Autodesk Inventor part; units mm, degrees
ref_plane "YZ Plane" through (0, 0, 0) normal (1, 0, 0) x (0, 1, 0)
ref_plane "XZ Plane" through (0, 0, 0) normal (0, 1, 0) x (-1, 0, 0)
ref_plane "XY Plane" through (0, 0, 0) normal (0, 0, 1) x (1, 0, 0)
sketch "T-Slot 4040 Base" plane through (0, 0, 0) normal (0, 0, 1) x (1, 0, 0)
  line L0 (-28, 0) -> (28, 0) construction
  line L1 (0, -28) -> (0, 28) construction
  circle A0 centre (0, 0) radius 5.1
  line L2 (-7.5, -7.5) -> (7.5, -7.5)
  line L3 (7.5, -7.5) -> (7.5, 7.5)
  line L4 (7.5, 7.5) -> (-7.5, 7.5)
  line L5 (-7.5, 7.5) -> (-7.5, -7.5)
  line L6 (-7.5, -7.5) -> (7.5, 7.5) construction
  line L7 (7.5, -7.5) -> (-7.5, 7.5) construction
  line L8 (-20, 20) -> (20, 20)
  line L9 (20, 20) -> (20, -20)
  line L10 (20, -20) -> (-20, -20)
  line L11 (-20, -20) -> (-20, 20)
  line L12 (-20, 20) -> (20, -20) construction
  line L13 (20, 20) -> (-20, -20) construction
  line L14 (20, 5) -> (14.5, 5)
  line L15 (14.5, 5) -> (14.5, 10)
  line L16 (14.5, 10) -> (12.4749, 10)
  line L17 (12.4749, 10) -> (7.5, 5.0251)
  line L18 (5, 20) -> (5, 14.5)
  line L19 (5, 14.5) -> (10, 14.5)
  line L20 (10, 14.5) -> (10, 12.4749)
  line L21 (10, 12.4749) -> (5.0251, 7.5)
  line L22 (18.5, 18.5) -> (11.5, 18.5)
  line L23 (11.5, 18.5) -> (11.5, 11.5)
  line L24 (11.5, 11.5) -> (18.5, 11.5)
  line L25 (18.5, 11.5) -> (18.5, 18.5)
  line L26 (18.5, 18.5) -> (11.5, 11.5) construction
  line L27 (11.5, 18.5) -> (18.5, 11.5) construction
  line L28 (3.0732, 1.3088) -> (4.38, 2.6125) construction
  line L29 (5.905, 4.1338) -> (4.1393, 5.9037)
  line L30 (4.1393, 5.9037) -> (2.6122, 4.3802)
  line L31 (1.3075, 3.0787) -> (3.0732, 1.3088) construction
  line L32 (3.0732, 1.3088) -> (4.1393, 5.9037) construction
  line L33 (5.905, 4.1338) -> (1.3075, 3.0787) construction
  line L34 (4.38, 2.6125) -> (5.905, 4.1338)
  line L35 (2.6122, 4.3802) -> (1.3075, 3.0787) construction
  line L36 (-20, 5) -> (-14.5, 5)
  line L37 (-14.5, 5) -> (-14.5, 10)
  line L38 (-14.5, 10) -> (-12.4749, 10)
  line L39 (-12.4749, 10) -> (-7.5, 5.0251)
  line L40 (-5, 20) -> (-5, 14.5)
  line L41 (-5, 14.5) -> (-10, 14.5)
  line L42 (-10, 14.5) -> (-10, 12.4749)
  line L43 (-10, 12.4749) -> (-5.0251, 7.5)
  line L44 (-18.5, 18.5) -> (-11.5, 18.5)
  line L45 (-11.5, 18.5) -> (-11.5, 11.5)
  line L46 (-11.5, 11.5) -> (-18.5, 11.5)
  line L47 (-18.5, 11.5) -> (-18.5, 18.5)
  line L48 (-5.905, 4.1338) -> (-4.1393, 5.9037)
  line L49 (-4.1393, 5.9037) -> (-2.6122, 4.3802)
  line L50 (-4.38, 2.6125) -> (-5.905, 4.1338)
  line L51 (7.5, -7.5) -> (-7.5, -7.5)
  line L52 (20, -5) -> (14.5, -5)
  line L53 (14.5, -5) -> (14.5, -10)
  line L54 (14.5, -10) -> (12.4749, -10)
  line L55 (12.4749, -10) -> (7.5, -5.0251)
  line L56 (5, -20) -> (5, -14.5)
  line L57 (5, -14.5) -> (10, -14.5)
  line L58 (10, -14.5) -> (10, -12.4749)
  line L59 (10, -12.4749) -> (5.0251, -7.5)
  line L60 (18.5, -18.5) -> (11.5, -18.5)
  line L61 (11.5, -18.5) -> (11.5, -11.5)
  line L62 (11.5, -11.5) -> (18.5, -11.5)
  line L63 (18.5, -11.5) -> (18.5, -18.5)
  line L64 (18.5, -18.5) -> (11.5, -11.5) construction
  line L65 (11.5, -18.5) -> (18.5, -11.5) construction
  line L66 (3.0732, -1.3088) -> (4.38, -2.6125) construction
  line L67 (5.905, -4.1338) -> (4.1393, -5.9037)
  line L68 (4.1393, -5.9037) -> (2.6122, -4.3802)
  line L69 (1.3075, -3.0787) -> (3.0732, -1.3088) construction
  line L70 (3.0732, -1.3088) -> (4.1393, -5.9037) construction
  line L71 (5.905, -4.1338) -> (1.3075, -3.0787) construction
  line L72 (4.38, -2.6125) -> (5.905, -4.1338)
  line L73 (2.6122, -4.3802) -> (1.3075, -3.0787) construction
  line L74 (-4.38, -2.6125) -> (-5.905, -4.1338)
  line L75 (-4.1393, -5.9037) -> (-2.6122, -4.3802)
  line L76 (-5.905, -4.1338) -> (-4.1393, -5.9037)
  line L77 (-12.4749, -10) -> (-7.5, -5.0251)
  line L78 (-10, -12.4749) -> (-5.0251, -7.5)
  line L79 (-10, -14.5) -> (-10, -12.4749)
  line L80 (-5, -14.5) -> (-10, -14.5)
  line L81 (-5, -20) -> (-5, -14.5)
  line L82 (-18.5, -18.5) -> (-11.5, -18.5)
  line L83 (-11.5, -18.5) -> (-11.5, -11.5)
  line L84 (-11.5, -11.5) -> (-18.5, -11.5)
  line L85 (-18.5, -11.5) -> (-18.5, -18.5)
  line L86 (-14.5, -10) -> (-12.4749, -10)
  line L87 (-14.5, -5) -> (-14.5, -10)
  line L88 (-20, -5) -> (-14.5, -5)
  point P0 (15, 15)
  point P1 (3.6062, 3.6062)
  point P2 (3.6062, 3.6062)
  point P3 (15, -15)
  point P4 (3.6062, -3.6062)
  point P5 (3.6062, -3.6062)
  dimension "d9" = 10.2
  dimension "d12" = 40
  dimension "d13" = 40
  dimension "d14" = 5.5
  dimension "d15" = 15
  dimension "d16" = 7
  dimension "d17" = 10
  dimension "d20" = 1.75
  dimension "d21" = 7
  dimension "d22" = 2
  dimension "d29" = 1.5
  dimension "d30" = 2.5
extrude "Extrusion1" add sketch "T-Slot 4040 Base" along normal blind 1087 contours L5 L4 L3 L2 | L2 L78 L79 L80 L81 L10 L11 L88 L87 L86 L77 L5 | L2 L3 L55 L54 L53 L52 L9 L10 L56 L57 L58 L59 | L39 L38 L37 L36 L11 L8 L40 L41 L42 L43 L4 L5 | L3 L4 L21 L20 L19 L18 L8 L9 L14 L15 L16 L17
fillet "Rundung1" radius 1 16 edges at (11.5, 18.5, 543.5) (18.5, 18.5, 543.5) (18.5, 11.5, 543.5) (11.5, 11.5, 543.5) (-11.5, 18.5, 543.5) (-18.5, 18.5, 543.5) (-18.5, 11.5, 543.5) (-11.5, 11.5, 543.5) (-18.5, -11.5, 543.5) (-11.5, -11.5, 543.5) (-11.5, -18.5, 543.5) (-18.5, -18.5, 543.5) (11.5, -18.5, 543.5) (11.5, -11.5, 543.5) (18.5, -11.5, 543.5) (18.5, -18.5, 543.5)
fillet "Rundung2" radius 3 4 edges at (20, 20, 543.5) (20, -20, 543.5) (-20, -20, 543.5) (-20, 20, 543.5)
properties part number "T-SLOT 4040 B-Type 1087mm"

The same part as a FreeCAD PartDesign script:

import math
import FreeCAD as App
import Part
import Sketcher
from FreeCAD import Vector
Q = App.Units.Quantity


def edges_at(feature, points):
    """Names of the edges that pass closest to the given points."""
    edges = feature.Shape.Edges
    near = lambda p: min(range(len(edges)), key=lambda i: edges[i].distToShape(Part.Vertex(*p))[0])
    return sorted({f"Edge{near(p) + 1}" for p in points})

doc = App.newDocument("Part")
body = doc.addObject("PartDesign::Body", "Body")

sketch1 = body.newObject("Sketcher::SketchObject", "Sketch")
sketch1.AttachmentSupport = (doc.getObject("XY_Plane"), [""])
sketch1.MapMode = "FlatFace"
sketch1.addGeometry(Part.LineSegment(Vector(-7.5, 5, 0), Vector(-7.5, -5, 0)), False)
sketch1.addGeometry(Part.LineSegment(Vector(-7.5, -5, 0), Vector(-12.5, -10, 0)), False)
sketch1.addGeometry(Part.LineSegment(Vector(-12.5, -10, 0), Vector(-14.5, -10, 0)), False)
sketch1.addGeometry(Part.LineSegment(Vector(-14.5, -10, 0), Vector(-14.5, -5, 0)), False)
sketch1.addGeometry(Part.LineSegment(Vector(-14.5, -5, 0), Vector(-20, -5, 0)), False)
sketch1.addGeometry(Part.LineSegment(Vector(-20, -5, 0), Vector(-20, -20, 0)), False)
sketch1.addGeometry(Part.LineSegment(Vector(-20, -20, 0), Vector(-5, -20, 0)), False)
sketch1.addGeometry(Part.LineSegment(Vector(-5, -20, 0), Vector(-5, -14.5, 0)), False)
sketch1.addGeometry(Part.LineSegment(Vector(-5, -14.5, 0), Vector(-10, -14.5, 0)), False)
sketch1.addGeometry(Part.LineSegment(Vector(-10, -14.5, 0), Vector(-10, -12.5, 0)), False)
sketch1.addGeometry(Part.LineSegment(Vector(-10, -12.5, 0), Vector(-5, -7.5, 0)), False)
sketch1.addGeometry(Part.LineSegment(Vector(-5, -7.5, 0), Vector(5, -7.5, 0)), False)
sketch1.addGeometry(Part.LineSegment(Vector(5, -7.5, 0), Vector(10, -12.5, 0)), False)
sketch1.addGeometry(Part.LineSegment(Vector(10, -12.5, 0), Vector(10, -14.5, 0)), False)
sketch1.addGeometry(Part.LineSegment(Vector(10, -14.5, 0), Vector(5, -14.5, 0)), False)
sketch1.addGeometry(Part.LineSegment(Vector(5, -14.5, 0), Vector(5, -20, 0)), False)
sketch1.addGeometry(Part.LineSegment(Vector(5, -20, 0), Vector(20, -20, 0)), False)
sketch1.addGeometry(Part.LineSegment(Vector(20, -20, 0), Vector(20, -5, 0)), False)
sketch1.addGeometry(Part.LineSegment(Vector(20, -5, 0), Vector(14.5, -5, 0)), False)
sketch1.addGeometry(Part.LineSegment(Vector(14.5, -5, 0), Vector(14.5, -10, 0)), False)
sketch1.addGeometry(Part.LineSegment(Vector(14.5, -10, 0), Vector(12.5, -10, 0)), False)
sketch1.addGeometry(Part.LineSegment(Vector(12.5, -10, 0), Vector(7.5, -5, 0)), False)
sketch1.addGeometry(Part.LineSegment(Vector(7.5, -5, 0), Vector(7.5, 5, 0)), False)
sketch1.addGeometry(Part.LineSegment(Vector(7.5, 5, 0), Vector(12.5, 10, 0)), False)
sketch1.addGeometry(Part.LineSegment(Vector(12.5, 10, 0), Vector(14.5, 10, 0)), False)
sketch1.addGeometry(Part.LineSegment(Vector(14.5, 10, 0), Vector(14.5, 5, 0)), False)
sketch1.addGeometry(Part.LineSegment(Vector(14.5, 5, 0), Vector(20, 5, 0)), False)
sketch1.addGeometry(Part.LineSegment(Vector(20, 5, 0), Vector(20, 20, 0)), False)
sketch1.addGeometry(Part.LineSegment(Vector(20, 20, 0), Vector(5, 20, 0)), False)
sketch1.addGeometry(Part.LineSegment(Vector(5, 20, 0), Vector(5, 14.5, 0)), False)
sketch1.addGeometry(Part.LineSegment(Vector(5, 14.5, 0), Vector(10, 14.5, 0)), False)
sketch1.addGeometry(Part.LineSegment(Vector(10, 14.5, 0), Vector(10, 12.5, 0)), False)
sketch1.addGeometry(Part.LineSegment(Vector(10, 12.5, 0), Vector(5, 7.5, 0)), False)
sketch1.addGeometry(Part.LineSegment(Vector(5, 7.5, 0), Vector(-5, 7.5, 0)), False)
sketch1.addGeometry(Part.LineSegment(Vector(-5, 7.5, 0), Vector(-10, 12.5, 0)), False)
sketch1.addGeometry(Part.LineSegment(Vector(-10, 12.5, 0), Vector(-10, 14.5, 0)), False)
sketch1.addGeometry(Part.LineSegment(Vector(-10, 14.5, 0), Vector(-5, 14.5, 0)), False)
sketch1.addGeometry(Part.LineSegment(Vector(-5, 14.5, 0), Vector(-5, 20, 0)), False)
sketch1.addGeometry(Part.LineSegment(Vector(-5, 20, 0), Vector(-20, 20, 0)), False)
sketch1.addGeometry(Part.LineSegment(Vector(-20, 20, 0), Vector(-20, 5, 0)), False)
sketch1.addGeometry(Part.LineSegment(Vector(-20, 5, 0), Vector(-14.5, 5, 0)), False)
sketch1.addGeometry(Part.LineSegment(Vector(-14.5, 5, 0), Vector(-14.5, 10, 0)), False)
sketch1.addGeometry(Part.LineSegment(Vector(-14.5, 10, 0), Vector(-12.5, 10, 0)), False)
sketch1.addGeometry(Part.LineSegment(Vector(-12.5, 10, 0), Vector(-7.5, 5, 0)), False)
sketch1.addGeometry(Part.ArcOfCircle(Part.Circle(Vector(0, 0, 0), Vector(0, 0, 1), 5.1), math.radians(-31), math.radians(31)), False)
sketch1.addGeometry(Part.LineSegment(Vector(4.4, -2.6, 0), Vector(5.9, -4.1, 0)), False)
sketch1.addGeometry(Part.LineSegment(Vector(5.9, -4.1, 0), Vector(4.1, -5.9, 0)), False)
sketch1.addGeometry(Part.LineSegment(Vector(4.1, -5.9, 0), Vector(2.6, -4.4, 0)), False)
sketch1.addGeometry(Part.ArcOfCircle(Part.Circle(Vector(0, 0, 0), Vector(0, 0, 1), 5.1), math.radians(-121), math.radians(-59)), False)
sketch1.addGeometry(Part.LineSegment(Vector(-2.6, -4.4, 0), Vector(-4.1, -5.9, 0)), False)
sketch1.addGeometry(Part.LineSegment(Vector(-4.1, -5.9, 0), Vector(-5.9, -4.1, 0)), False)
sketch1.addGeometry(Part.LineSegment(Vector(-5.9, -4.1, 0), Vector(-4.4, -2.6, 0)), False)
sketch1.addGeometry(Part.ArcOfCircle(Part.Circle(Vector(0, 0, 0), Vector(0, 0, 1), 5.1), math.radians(149), math.radians(211)), False)
sketch1.addGeometry(Part.LineSegment(Vector(-4.4, 2.6, 0), Vector(-5.9, 4.1, 0)), False)
sketch1.addGeometry(Part.LineSegment(Vector(-5.9, 4.1, 0), Vector(-4.1, 5.9, 0)), False)
sketch1.addGeometry(Part.LineSegment(Vector(-4.1, 5.9, 0), Vector(-2.6, 4.4, 0)), False)
sketch1.addGeometry(Part.ArcOfCircle(Part.Circle(Vector(0, 0, 0), Vector(0, 0, 1), 5.1), math.radians(59), math.radians(121)), False)
sketch1.addGeometry(Part.LineSegment(Vector(2.6, 4.4, 0), Vector(4.1, 5.9, 0)), False)
sketch1.addGeometry(Part.LineSegment(Vector(4.1, 5.9, 0), Vector(5.9, 4.1, 0)), False)
sketch1.addGeometry(Part.LineSegment(Vector(5.9, 4.1, 0), Vector(4.4, 2.6, 0)), False)
sketch1.addGeometry(Part.LineSegment(Vector(-18.5, -11.5, 0), Vector(-11.5, -11.5, 0)), False)
sketch1.addGeometry(Part.LineSegment(Vector(-11.5, -11.5, 0), Vector(-11.5, -18.5, 0)), False)
sketch1.addGeometry(Part.LineSegment(Vector(-11.5, -18.5, 0), Vector(-18.5, -18.5, 0)), False)
sketch1.addGeometry(Part.LineSegment(Vector(-18.5, -18.5, 0), Vector(-18.5, -11.5, 0)), False)
sketch1.addGeometry(Part.LineSegment(Vector(-11.5, 18.5, 0), Vector(-11.5, 11.5, 0)), False)
sketch1.addGeometry(Part.LineSegment(Vector(-11.5, 11.5, 0), Vector(-18.5, 11.5, 0)), False)
sketch1.addGeometry(Part.LineSegment(Vector(-18.5, 11.5, 0), Vector(-18.5, 18.5, 0)), False)
sketch1.addGeometry(Part.LineSegment(Vector(-18.5, 18.5, 0), Vector(-11.5, 18.5, 0)), False)
sketch1.addGeometry(Part.LineSegment(Vector(18.5, 11.5, 0), Vector(11.5, 11.5, 0)), False)
sketch1.addGeometry(Part.LineSegment(Vector(11.5, 11.5, 0), Vector(11.5, 18.5, 0)), False)
sketch1.addGeometry(Part.LineSegment(Vector(11.5, 18.5, 0), Vector(18.5, 18.5, 0)), False)
sketch1.addGeometry(Part.LineSegment(Vector(18.5, 18.5, 0), Vector(18.5, 11.5, 0)), False)
sketch1.addGeometry(Part.LineSegment(Vector(11.5, -18.5, 0), Vector(11.5, -11.5, 0)), False)
sketch1.addGeometry(Part.LineSegment(Vector(11.5, -11.5, 0), Vector(18.5, -11.5, 0)), False)
sketch1.addGeometry(Part.LineSegment(Vector(18.5, -11.5, 0), Vector(18.5, -18.5, 0)), False)
sketch1.addGeometry(Part.LineSegment(Vector(18.5, -18.5, 0), Vector(11.5, -18.5, 0)), False)
sketch1.addConstraint(Sketcher.Constraint("Coincident", 0, 2, 1, 1))
sketch1.addConstraint(Sketcher.Constraint("Coincident", 1, 2, 2, 1))
sketch1.addConstraint(Sketcher.Constraint("Coincident", 2, 2, 3, 1))
sketch1.addConstraint(Sketcher.Constraint("Coincident", 3, 2, 4, 1))
sketch1.addConstraint(Sketcher.Constraint("Coincident", 4, 2, 5, 1))
sketch1.addConstraint(Sketcher.Constraint("Coincident", 5, 2, 6, 1))
sketch1.addConstraint(Sketcher.Constraint("Coincident", 6, 2, 7, 1))
sketch1.addConstraint(Sketcher.Constraint("Coincident", 7, 2, 8, 1))
sketch1.addConstraint(Sketcher.Constraint("Coincident", 8, 2, 9, 1))
sketch1.addConstraint(Sketcher.Constraint("Coincident", 9, 2, 10, 1))
sketch1.addConstraint(Sketcher.Constraint("Coincident", 10, 2, 11, 1))
sketch1.addConstraint(Sketcher.Constraint("Coincident", 11, 2, 12, 1))
sketch1.addConstraint(Sketcher.Constraint("Coincident", 12, 2, 13, 1))
sketch1.addConstraint(Sketcher.Constraint("Coincident", 13, 2, 14, 1))
sketch1.addConstraint(Sketcher.Constraint("Coincident", 14, 2, 15, 1))
sketch1.addConstraint(Sketcher.Constraint("Coincident", 15, 2, 16, 1))
sketch1.addConstraint(Sketcher.Constraint("Coincident", 16, 2, 17, 1))
sketch1.addConstraint(Sketcher.Constraint("Coincident", 17, 2, 18, 1))
sketch1.addConstraint(Sketcher.Constraint("Coincident", 18, 2, 19, 1))
sketch1.addConstraint(Sketcher.Constraint("Coincident", 19, 2, 20, 1))
sketch1.addConstraint(Sketcher.Constraint("Coincident", 20, 2, 21, 1))
sketch1.addConstraint(Sketcher.Constraint("Coincident", 21, 2, 22, 1))
sketch1.addConstraint(Sketcher.Constraint("Coincident", 22, 2, 23, 1))
sketch1.addConstraint(Sketcher.Constraint("Coincident", 23, 2, 24, 1))
sketch1.addConstraint(Sketcher.Constraint("Coincident", 24, 2, 25, 1))
sketch1.addConstraint(Sketcher.Constraint("Coincident", 25, 2, 26, 1))
sketch1.addConstraint(Sketcher.Constraint("Coincident", 26, 2, 27, 1))
sketch1.addConstraint(Sketcher.Constraint("Coincident", 27, 2, 28, 1))
sketch1.addConstraint(Sketcher.Constraint("Coincident", 28, 2, 29, 1))
sketch1.addConstraint(Sketcher.Constraint("Coincident", 29, 2, 30, 1))
sketch1.addConstraint(Sketcher.Constraint("Coincident", 30, 2, 31, 1))
sketch1.addConstraint(Sketcher.Constraint("Coincident", 31, 2, 32, 1))
sketch1.addConstraint(Sketcher.Constraint("Coincident", 32, 2, 33, 1))
sketch1.addConstraint(Sketcher.Constraint("Coincident", 33, 2, 34, 1))
sketch1.addConstraint(Sketcher.Constraint("Coincident", 34, 2, 35, 1))
sketch1.addConstraint(Sketcher.Constraint("Coincident", 35, 2, 36, 1))
sketch1.addConstraint(Sketcher.Constraint("Coincident", 36, 2, 37, 1))
sketch1.addConstraint(Sketcher.Constraint("Coincident", 37, 2, 38, 1))
sketch1.addConstraint(Sketcher.Constraint("Coincident", 38, 2, 39, 1))
sketch1.addConstraint(Sketcher.Constraint("Coincident", 39, 2, 40, 1))
sketch1.addConstraint(Sketcher.Constraint("Coincident", 40, 2, 41, 1))
sketch1.addConstraint(Sketcher.Constraint("Coincident", 41, 2, 42, 1))
sketch1.addConstraint(Sketcher.Constraint("Coincident", 42, 2, 43, 1))
sketch1.addConstraint(Sketcher.Constraint("Coincident", 43, 2, 0, 1))
sketch1.addConstraint(Sketcher.Constraint("Coincident", 44, 1, 45, 1))
sketch1.addConstraint(Sketcher.Constraint("Coincident", 45, 2, 46, 1))
sketch1.addConstraint(Sketcher.Constraint("Coincident", 46, 2, 47, 1))
sketch1.addConstraint(Sketcher.Constraint("Coincident", 47, 2, 48, 2))
sketch1.addConstraint(Sketcher.Constraint("Coincident", 48, 1, 49, 1))
sketch1.addConstraint(Sketcher.Constraint("Coincident", 49, 2, 50, 1))
sketch1.addConstraint(Sketcher.Constraint("Coincident", 50, 2, 51, 1))
sketch1.addConstraint(Sketcher.Constraint("Coincident", 51, 2, 52, 2))
sketch1.addConstraint(Sketcher.Constraint("Coincident", 52, 1, 53, 1))
sketch1.addConstraint(Sketcher.Constraint("Coincident", 53, 2, 54, 1))
sketch1.addConstraint(Sketcher.Constraint("Coincident", 54, 2, 55, 1))
sketch1.addConstraint(Sketcher.Constraint("Coincident", 55, 2, 56, 2))
sketch1.addConstraint(Sketcher.Constraint("Coincident", 56, 1, 57, 1))
sketch1.addConstraint(Sketcher.Constraint("Coincident", 57, 2, 58, 1))
sketch1.addConstraint(Sketcher.Constraint("Coincident", 58, 2, 59, 1))
sketch1.addConstraint(Sketcher.Constraint("Coincident", 59, 2, 44, 2))
sketch1.addConstraint(Sketcher.Constraint("Coincident", 60, 2, 61, 1))
sketch1.addConstraint(Sketcher.Constraint("Coincident", 61, 2, 62, 1))
sketch1.addConstraint(Sketcher.Constraint("Coincident", 62, 2, 63, 1))
sketch1.addConstraint(Sketcher.Constraint("Coincident", 63, 2, 60, 1))
sketch1.addConstraint(Sketcher.Constraint("Coincident", 64, 2, 65, 1))
sketch1.addConstraint(Sketcher.Constraint("Coincident", 65, 2, 66, 1))
sketch1.addConstraint(Sketcher.Constraint("Coincident", 66, 2, 67, 1))
sketch1.addConstraint(Sketcher.Constraint("Coincident", 67, 2, 64, 1))
sketch1.addConstraint(Sketcher.Constraint("Coincident", 68, 2, 69, 1))
sketch1.addConstraint(Sketcher.Constraint("Coincident", 69, 2, 70, 1))
sketch1.addConstraint(Sketcher.Constraint("Coincident", 70, 2, 71, 1))
sketch1.addConstraint(Sketcher.Constraint("Coincident", 71, 2, 68, 1))
sketch1.addConstraint(Sketcher.Constraint("Coincident", 72, 2, 73, 1))
sketch1.addConstraint(Sketcher.Constraint("Coincident", 73, 2, 74, 1))
sketch1.addConstraint(Sketcher.Constraint("Coincident", 74, 2, 75, 1))
sketch1.addConstraint(Sketcher.Constraint("Coincident", 75, 2, 72, 1))
sketch1.addConstraint(Sketcher.Constraint("Vertical", 0))
sketch1.addConstraint(Sketcher.Constraint("Horizontal", 2))
sketch1.addConstraint(Sketcher.Constraint("Vertical", 3))
sketch1.addConstraint(Sketcher.Constraint("Horizontal", 4))
sketch1.addConstraint(Sketcher.Constraint("Vertical", 5))
sketch1.addConstraint(Sketcher.Constraint("Horizontal", 6))
sketch1.addConstraint(Sketcher.Constraint("Vertical", 7))
sketch1.addConstraint(Sketcher.Constraint("Horizontal", 8))
sketch1.addConstraint(Sketcher.Constraint("Vertical", 9))
sketch1.addConstraint(Sketcher.Constraint("Horizontal", 11))
sketch1.addConstraint(Sketcher.Constraint("Vertical", 13))
sketch1.addConstraint(Sketcher.Constraint("Horizontal", 14))
sketch1.addConstraint(Sketcher.Constraint("Vertical", 15))
sketch1.addConstraint(Sketcher.Constraint("Horizontal", 16))
sketch1.addConstraint(Sketcher.Constraint("Vertical", 17))
sketch1.addConstraint(Sketcher.Constraint("Horizontal", 18))
sketch1.addConstraint(Sketcher.Constraint("Vertical", 19))
sketch1.addConstraint(Sketcher.Constraint("Horizontal", 20))
sketch1.addConstraint(Sketcher.Constraint("Vertical", 22))
sketch1.addConstraint(Sketcher.Constraint("Horizontal", 24))
sketch1.addConstraint(Sketcher.Constraint("Vertical", 25))
sketch1.addConstraint(Sketcher.Constraint("Horizontal", 26))
sketch1.addConstraint(Sketcher.Constraint("Vertical", 27))
sketch1.addConstraint(Sketcher.Constraint("Horizontal", 28))
sketch1.addConstraint(Sketcher.Constraint("Vertical", 29))
sketch1.addConstraint(Sketcher.Constraint("Horizontal", 30))
sketch1.addConstraint(Sketcher.Constraint("Vertical", 31))
sketch1.addConstraint(Sketcher.Constraint("Horizontal", 33))
sketch1.addConstraint(Sketcher.Constraint("Vertical", 35))
sketch1.addConstraint(Sketcher.Constraint("Horizontal", 36))
sketch1.addConstraint(Sketcher.Constraint("Vertical", 37))
sketch1.addConstraint(Sketcher.Constraint("Horizontal", 38))
sketch1.addConstraint(Sketcher.Constraint("Vertical", 39))
sketch1.addConstraint(Sketcher.Constraint("Horizontal", 40))
sketch1.addConstraint(Sketcher.Constraint("Vertical", 41))
sketch1.addConstraint(Sketcher.Constraint("Horizontal", 42))
sketch1.addConstraint(Sketcher.Constraint("Horizontal", 60))
sketch1.addConstraint(Sketcher.Constraint("Vertical", 61))
sketch1.addConstraint(Sketcher.Constraint("Horizontal", 62))
sketch1.addConstraint(Sketcher.Constraint("Vertical", 63))
sketch1.addConstraint(Sketcher.Constraint("Vertical", 64))
sketch1.addConstraint(Sketcher.Constraint("Horizontal", 65))
sketch1.addConstraint(Sketcher.Constraint("Vertical", 66))
sketch1.addConstraint(Sketcher.Constraint("Horizontal", 67))
sketch1.addConstraint(Sketcher.Constraint("Horizontal", 68))
sketch1.addConstraint(Sketcher.Constraint("Vertical", 69))
sketch1.addConstraint(Sketcher.Constraint("Horizontal", 70))
sketch1.addConstraint(Sketcher.Constraint("Vertical", 71))
sketch1.addConstraint(Sketcher.Constraint("Vertical", 72))
sketch1.addConstraint(Sketcher.Constraint("Horizontal", 73))
sketch1.addConstraint(Sketcher.Constraint("Vertical", 74))
sketch1.addConstraint(Sketcher.Constraint("Horizontal", 75))
sketch1.addConstraint(Sketcher.Constraint("Coincident", 44, 3, -1, 1))
sketch1.addConstraint(Sketcher.Constraint("Coincident", 48, 3, -1, 1))
sketch1.addConstraint(Sketcher.Constraint("Coincident", 52, 3, -1, 1))
sketch1.addConstraint(Sketcher.Constraint("Coincident", 56, 3, -1, 1))
sketch1.addConstraint(Sketcher.Constraint("Equal", 44, 48))
sketch1.addConstraint(Sketcher.Constraint("Equal", 48, 52))
sketch1.addConstraint(Sketcher.Constraint("Equal", 52, 56))
sketch1.addConstraint(Sketcher.Constraint("Symmetric", 0, 2, 22, 2, -1, 1))
sketch1.addConstraint(Sketcher.Constraint("Symmetric", 1, 2, 23, 2, -1, 1))
sketch1.addConstraint(Sketcher.Constraint("Symmetric", 3, 2, 25, 2, -1, 1))
sketch1.addConstraint(Sketcher.Constraint("Symmetric", 5, 2, 27, 2, -1, 1))
sketch1.addConstraint(Sketcher.Constraint("Symmetric", 7, 2, 29, 2, -1, 1))
sketch1.addConstraint(Sketcher.Constraint("Symmetric", 9, 2, 31, 2, -1, 1))
sketch1.addConstraint(Sketcher.Constraint("Symmetric", 10, 2, 32, 2, -1, 1))
sketch1.addConstraint(Sketcher.Constraint("Symmetric", 12, 2, 34, 2, -1, 1))
sketch1.addConstraint(Sketcher.Constraint("Symmetric", 14, 2, 36, 2, -1, 1))
sketch1.addConstraint(Sketcher.Constraint("Symmetric", 16, 2, 38, 2, -1, 1))
sketch1.addConstraint(Sketcher.Constraint("Symmetric", 18, 2, 40, 2, -1, 1))
sketch1.addConstraint(Sketcher.Constraint("Symmetric", 20, 2, 42, 2, -1, 1))
sketch1.addConstraint(Sketcher.Constraint("Symmetric", 45, 2, 53, 2, -1, 1))
sketch1.addConstraint(Sketcher.Constraint("Symmetric", 46, 2, 54, 2, -1, 1))
sketch1.addConstraint(Sketcher.Constraint("Symmetric", 49, 2, 57, 2, -1, 1))
sketch1.addConstraint(Sketcher.Constraint("Symmetric", 50, 2, 58, 2, -1, 1))
sketch1.addConstraint(Sketcher.Constraint("Symmetric", 60, 2, 68, 2, -1, 1))
sketch1.addConstraint(Sketcher.Constraint("Symmetric", 62, 2, 70, 2, -1, 1))
sketch1.addConstraint(Sketcher.Constraint("Symmetric", 64, 2, 72, 2, -1, 1))
sketch1.addConstraint(Sketcher.Constraint("Symmetric", 66, 2, 74, 2, -1, 1))
sketch1.addConstraint(Sketcher.Constraint("Symmetric", 9, 2, 12, 2, -2))
sketch1.addConstraint(Sketcher.Constraint("Symmetric", 7, 2, 14, 2, -2))
sketch1.addConstraint(Sketcher.Constraint("Symmetric", 5, 2, 16, 2, -2))
sketch1.addConstraint(Sketcher.Constraint("Symmetric", 3, 2, 18, 2, -2))
sketch1.addConstraint(Sketcher.Constraint("Symmetric", 1, 2, 20, 2, -2))
sketch1.addConstraint(Sketcher.Constraint("Symmetric", 46, 2, 49, 2, -2))
sketch1.addConstraint(Sketcher.Constraint("Symmetric", 45, 2, 50, 2, -2))
sketch1.addConstraint(Sketcher.Constraint("Symmetric", 64, 2, 68, 2, -2))
sketch1.addConstraint(Sketcher.Constraint("Symmetric", 66, 2, 70, 2, -2))
sketch1.addConstraint(Sketcher.Constraint("Parallel", 1, 10))
sketch1.addConstraint(Sketcher.Constraint("Perpendicular", 10, 12))
sketch1.addConstraint(Sketcher.Constraint("Parallel", 12, 21))
sketch1.addConstraint(Sketcher.Constraint("Perpendicular", 32, 34))
sketch1.addConstraint(Sketcher.Constraint("Parallel", 34, 43))
sketch1.addConstraint(Sketcher.Constraint("Perpendicular", 45, 46))
sketch1.addConstraint(Sketcher.Constraint("Perpendicular", 46, 47))
sketch1.addConstraint(Sketcher.Constraint("Perpendicular", 49, 50))
sketch1.addConstraint(Sketcher.Constraint("Perpendicular", 50, 51))
sketch1.addConstraint(Sketcher.Constraint("Parallel", 47, 53))
sketch1.addConstraint(Sketcher.Constraint("Perpendicular", 54, 55))
sketch1.addConstraint(Sketcher.Constraint("Parallel", 51, 57))
sketch1.addConstraint(Sketcher.Constraint("Perpendicular", 58, 59))
sketch1.addConstraint(Sketcher.Constraint("Horizontal", 0, 2, 21, 2))
sketch1.addConstraint(Sketcher.Constraint("Equal", 33, 0))
sketch1.addConstraint(Sketcher.Constraint("Equal", 36, 3))
sketch1.addConstraint(Sketcher.Constraint("Equal", 38, 5))
sketch1.addConstraint(Sketcher.Constraint("Equal", 40, 7))
sketch1.addConstraint(Sketcher.Constraint("Equal", 42, 9))
sketch1.addConstraint(Sketcher.Constraint("Equal", 75, 61))
sketch1.addConstraint(Sketcher.Constraint("Equal", 1, 10))
sketch1.addConstraint(Sketcher.Constraint("Radius", 44, 5.1))
sketch1.addConstraint(Sketcher.Constraint("DistanceX", 6, 1, 6, 2, 15.0))
sketch1.addConstraint(Sketcher.Constraint("DistanceX", 60, 1, 60, 2, 7.0))
sketch1.addConstraint(Sketcher.Constraint("DistanceX", 4, 2, 4, 1, 5.5))
sketch1.addConstraint(Sketcher.Constraint("DistanceY", 1, 2, -1, 1, 10.0))
sketch1.addConstraint(Sketcher.Constraint("Distance", 46, 2.5))
sketch1.addConstraint(Sketcher.Constraint("DistanceX", 8, 2, 8, 1, 5.0))
sketch1.addConstraint(Sketcher.Constraint("DistanceX", 0, 2, -1, 1, 7.5))
sketch1.addConstraint(Sketcher.Constraint("DistanceX", 60, 2, -1, 1, 11.5))
sketch1.addConstraint(Sketcher.Constraint("DistanceY", 60, 2, -1, 1, 11.5))
sketch1.addConstraint(Sketcher.Constraint("Angle", 45, Q("-44.9304 deg")))
sketch1.addConstraint(Sketcher.Constraint("DistanceX", 2, 2, 2, 1, 2.025))
sketch1.addConstraint(Sketcher.Constraint("DistanceX", -1, 1, 44, 1, 4.38))
sketch1.addConstraint(Sketcher.Constraint("Distance", 45, 2.154))
pad1 = body.newObject("PartDesign::Pad", "Pad")
pad1.Profile = sketch1
pad1.Length = 1087
doc.recompute()

fillet = body.newObject("PartDesign::Fillet", "Fillet")
fillet.Base = (pad1, edges_at(pad1, [
    (11.5, 18.5, 543.5),
    (18.5, 18.5, 543.5),
    (18.5, 11.5, 543.5),
    (11.5, 11.5, 543.5),
    (-11.5, 18.5, 543.5),
    (-18.5, 18.5, 543.5),
    (-18.5, 11.5, 543.5),
    (-11.5, 11.5, 543.5),
    (-18.5, -11.5, 543.5),
    (-11.5, -11.5, 543.5),
    (-11.5, -18.5, 543.5),
    (-18.5, -18.5, 543.5),
    (11.5, -18.5, 543.5),
    (11.5, -11.5, 543.5),
    (18.5, -11.5, 543.5),
    (18.5, -18.5, 543.5),
]))
fillet.Radius = 1
doc.recompute()

fillet2 = body.newObject("PartDesign::Fillet", "Fillet001")
fillet2.Base = (fillet, edges_at(fillet, [
    (20, 20, 543.5),
    (20, -20, 543.5),
    (-20, -20, 543.5),
    (-20, 20, 543.5),
]))
fillet2.Radius = 3

doc.recompute()
